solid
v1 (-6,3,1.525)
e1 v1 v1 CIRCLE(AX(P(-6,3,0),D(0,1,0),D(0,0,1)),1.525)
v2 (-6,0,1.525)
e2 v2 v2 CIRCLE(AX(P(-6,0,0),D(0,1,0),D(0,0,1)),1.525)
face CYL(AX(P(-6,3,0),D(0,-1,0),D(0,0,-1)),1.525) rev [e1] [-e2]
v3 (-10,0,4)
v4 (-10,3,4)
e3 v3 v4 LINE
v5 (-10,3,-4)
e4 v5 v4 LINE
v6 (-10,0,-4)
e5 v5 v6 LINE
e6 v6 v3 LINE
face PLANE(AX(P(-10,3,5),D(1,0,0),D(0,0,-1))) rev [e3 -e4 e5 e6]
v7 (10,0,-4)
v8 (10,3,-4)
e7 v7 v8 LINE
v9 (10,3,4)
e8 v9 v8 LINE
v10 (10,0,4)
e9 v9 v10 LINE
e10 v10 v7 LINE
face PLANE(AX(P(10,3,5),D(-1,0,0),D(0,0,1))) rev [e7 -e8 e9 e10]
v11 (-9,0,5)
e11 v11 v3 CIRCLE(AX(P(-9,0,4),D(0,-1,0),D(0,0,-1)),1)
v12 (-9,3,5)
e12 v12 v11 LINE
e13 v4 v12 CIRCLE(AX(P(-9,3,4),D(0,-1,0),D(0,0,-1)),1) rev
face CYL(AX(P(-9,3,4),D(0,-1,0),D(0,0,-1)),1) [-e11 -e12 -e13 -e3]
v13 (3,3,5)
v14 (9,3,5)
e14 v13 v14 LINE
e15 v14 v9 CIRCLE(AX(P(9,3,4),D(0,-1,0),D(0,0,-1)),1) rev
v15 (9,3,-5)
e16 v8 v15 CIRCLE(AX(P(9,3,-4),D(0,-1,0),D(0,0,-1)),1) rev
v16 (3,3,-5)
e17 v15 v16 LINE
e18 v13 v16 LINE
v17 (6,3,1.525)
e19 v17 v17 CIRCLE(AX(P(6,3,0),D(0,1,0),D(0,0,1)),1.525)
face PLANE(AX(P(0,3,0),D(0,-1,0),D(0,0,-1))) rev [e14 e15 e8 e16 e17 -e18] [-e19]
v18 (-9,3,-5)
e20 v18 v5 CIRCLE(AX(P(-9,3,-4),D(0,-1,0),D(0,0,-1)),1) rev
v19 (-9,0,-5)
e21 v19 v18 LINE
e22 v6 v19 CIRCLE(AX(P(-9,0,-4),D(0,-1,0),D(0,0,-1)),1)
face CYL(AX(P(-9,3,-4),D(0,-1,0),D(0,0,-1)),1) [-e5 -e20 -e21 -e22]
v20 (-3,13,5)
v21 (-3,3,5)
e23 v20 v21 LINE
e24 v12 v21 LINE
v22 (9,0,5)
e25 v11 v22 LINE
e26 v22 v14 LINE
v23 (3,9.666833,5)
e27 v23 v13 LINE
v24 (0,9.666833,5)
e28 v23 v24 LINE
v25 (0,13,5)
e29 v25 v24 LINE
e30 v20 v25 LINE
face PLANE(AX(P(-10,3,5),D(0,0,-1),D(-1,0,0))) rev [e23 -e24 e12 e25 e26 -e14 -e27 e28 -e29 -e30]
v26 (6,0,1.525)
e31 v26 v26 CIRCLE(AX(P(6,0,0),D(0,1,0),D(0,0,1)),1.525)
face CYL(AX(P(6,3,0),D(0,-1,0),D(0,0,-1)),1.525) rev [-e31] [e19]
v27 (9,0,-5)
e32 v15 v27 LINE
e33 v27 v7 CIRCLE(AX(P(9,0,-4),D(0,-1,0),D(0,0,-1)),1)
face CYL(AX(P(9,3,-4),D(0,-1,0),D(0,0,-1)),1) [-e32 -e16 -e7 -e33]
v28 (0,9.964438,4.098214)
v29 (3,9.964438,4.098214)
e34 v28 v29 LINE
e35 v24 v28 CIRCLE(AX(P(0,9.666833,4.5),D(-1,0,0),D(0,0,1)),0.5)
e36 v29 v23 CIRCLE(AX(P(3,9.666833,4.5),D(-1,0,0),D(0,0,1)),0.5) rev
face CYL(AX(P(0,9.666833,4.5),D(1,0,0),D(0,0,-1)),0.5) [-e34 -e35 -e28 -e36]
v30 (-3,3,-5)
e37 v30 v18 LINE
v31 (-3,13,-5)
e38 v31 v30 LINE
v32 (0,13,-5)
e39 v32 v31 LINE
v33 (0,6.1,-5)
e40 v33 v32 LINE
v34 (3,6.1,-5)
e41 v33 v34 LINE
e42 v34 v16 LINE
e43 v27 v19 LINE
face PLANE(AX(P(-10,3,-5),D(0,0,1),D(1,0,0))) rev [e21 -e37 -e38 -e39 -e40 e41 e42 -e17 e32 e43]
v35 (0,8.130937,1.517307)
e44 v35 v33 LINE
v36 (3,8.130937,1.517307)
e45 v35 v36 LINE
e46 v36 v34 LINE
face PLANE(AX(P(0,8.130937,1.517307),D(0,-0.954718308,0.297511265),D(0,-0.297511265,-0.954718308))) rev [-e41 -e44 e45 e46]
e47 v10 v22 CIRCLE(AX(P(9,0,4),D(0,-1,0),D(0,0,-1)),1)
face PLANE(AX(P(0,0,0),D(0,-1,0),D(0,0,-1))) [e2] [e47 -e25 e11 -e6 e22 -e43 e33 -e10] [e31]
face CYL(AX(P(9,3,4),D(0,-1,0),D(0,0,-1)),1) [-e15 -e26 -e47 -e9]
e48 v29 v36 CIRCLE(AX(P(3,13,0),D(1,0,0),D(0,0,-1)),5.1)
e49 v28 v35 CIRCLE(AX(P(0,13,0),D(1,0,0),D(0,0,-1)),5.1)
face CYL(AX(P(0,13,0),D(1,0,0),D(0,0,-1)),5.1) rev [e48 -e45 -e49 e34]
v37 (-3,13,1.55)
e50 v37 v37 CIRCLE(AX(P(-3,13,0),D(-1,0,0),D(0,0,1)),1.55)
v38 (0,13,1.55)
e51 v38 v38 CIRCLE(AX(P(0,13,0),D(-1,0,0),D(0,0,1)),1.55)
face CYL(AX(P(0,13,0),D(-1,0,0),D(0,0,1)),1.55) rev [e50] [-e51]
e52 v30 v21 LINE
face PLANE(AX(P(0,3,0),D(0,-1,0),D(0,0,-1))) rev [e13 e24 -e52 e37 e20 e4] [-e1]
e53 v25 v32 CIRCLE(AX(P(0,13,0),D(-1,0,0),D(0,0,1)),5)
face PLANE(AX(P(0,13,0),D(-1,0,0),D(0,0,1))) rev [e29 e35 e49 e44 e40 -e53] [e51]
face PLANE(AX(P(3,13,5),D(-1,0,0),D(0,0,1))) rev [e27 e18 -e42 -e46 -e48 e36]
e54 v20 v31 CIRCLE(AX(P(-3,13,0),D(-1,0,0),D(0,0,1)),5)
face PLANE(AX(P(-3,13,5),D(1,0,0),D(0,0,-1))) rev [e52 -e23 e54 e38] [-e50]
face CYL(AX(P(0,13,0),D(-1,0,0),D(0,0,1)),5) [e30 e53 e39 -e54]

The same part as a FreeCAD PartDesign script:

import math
import FreeCAD as App
import Part
import Sketcher
from FreeCAD import Vector
Q = App.Units.Quantity


def edges_at(feature, points):
    """Names of the edges that pass closest to the given points."""
    edges = feature.Shape.Edges
    near = lambda p: min(range(len(edges)), key=lambda i: edges[i].distToShape(Part.Vertex(*p))[0])
    return sorted({f"Edge{near(p) + 1}" for p in points})

doc = App.newDocument("Part")
params = doc.addObject("Spreadsheet::Sheet", "Params")
for row, (alias, value) in enumerate([
    ("sketch1_diameter", "3.05 mm"),
    ("sketch1_width", "20 mm"),
    ("sketch1_height", "10 mm"),
    ("pad1_length", "3 mm"),
    ("sketch2_width", "6 mm"),
    ("sketch2_height", "10 mm"),
    ("pad2_length", "10 mm"),
    ("sketch3_diameter", "10 mm"),
    ("sketch3_diameter2", "3.1 mm"),
    ("pad3_length", "3 mm"),
    ("sketch4_diameter", "3.1 mm"),
    ("pocket1_length", "6 mm"),
    ("sketch5_diameter", "10 mm"),
    ("pocket2_length", "3 mm"),
    ("fillet_radius", "1 mm"),
    ("sketch6_radius", "5.1 mm"),
    ("sketch6_height", "10 mm"),
    ("pocket3_length", "3 mm"),
    ("fillet2_radius", "0.5 mm"),
    ("sketch7_radius", "5.1 mm"),
    ("sketch7_width", "1.9 mm"),
    ("pocket4_length", "3 mm"),
], start=1):
    params.set(f"A{row}", alias)
    params.set(f"B{row}", "=" + value)
    params.setAlias(f"B{row}", alias)

body = doc.addObject("PartDesign::Body", "Body")

# Sketch on XZ plane
sketch1 = doc.addObject("Sketcher::SketchObject", "Sketch")
body.addObject(sketch1)
sketch1.AttachmentSupport = (doc.XZ_Plane, [""])
sketch1.MapMode = "FlatFace"
sketch1.addGeometry([
    Part.LineSegment(Vector(-10, -5, 0), Vector(-10, 5, 0)),  # 0
    Part.LineSegment(Vector(-10, 5, 0), Vector(10, 5, 0)),  # 1
    Part.LineSegment(Vector(10, 5, 0), Vector(10, -5, 0)),  # 2
    Part.LineSegment(Vector(10, -5, 0), Vector(-10, -5, 0)),  # 3
    Part.Circle(Vector(-6, 0, 0), Vector(0, 0, 1), 1.5),  # 4
    Part.Circle(Vector(6, 0, 0), Vector(0, 0, 1), 1.5),  # 5
], False)
sketch1.addConstraint([
    Sketcher.Constraint("Coincident", 0, 2, 1, 1),
    Sketcher.Constraint("Coincident", 1, 2, 2, 1),
    Sketcher.Constraint("Coincident", 2, 2, 3, 1),
    Sketcher.Constraint("Coincident", 3, 2, 0, 1),
    Sketcher.Constraint("Vertical", 0),
    Sketcher.Constraint("Horizontal", 1),
    Sketcher.Constraint("Vertical", 2),
    Sketcher.Constraint("Horizontal", 3),
    Sketcher.Constraint("Equal", 4, 5),
    Sketcher.Constraint("Symmetric", 4, 3, 5, 3, -1, 1),
    Sketcher.Constraint("Symmetric", 0, 2, 2, 2, -1, 1),
    Sketcher.Constraint("PointOnObject", 4, 3, -1),
    Sketcher.Constraint("Diameter", 4, Q("3.05 mm")),
    Sketcher.Constraint("DistanceX", 1, 1, 1, 2, Q("20 mm")),
    Sketcher.Constraint("DistanceY", 0, 1, 0, 2, Q("10 mm")),
    Sketcher.Constraint("DistanceX", 4, 3, -1, 1, Q("6 mm")),
])
sketch1.setExpression("Constraints[12]", "Params.sketch1_diameter")
sketch1.setExpression("Constraints[13]", "Params.sketch1_width")
sketch1.setExpression("Constraints[14]", "Params.sketch1_height")
pad1 = doc.addObject("PartDesign::Pad", "Pad")
body.addObject(pad1)
pad1.Profile = sketch1
pad1.setExpression("Length", "Params.pad1_length")
pad1.Reversed = True

# Sketch on XZ plane
sketch2 = doc.addObject("Sketcher::SketchObject", "Sketch001")
body.addObject(sketch2)
sketch2.AttachmentSupport = (doc.XZ_Plane, [""])
sketch2.MapMode = "FlatFace"
sketch2.AttachmentOffset = App.Placement(Vector(0, 0, -3), App.Rotation())
sketch2.addGeometry([
    Part.LineSegment(Vector(-3, -5, 0), Vector(-3, 5, 0)),
    Part.LineSegment(Vector(-3, 5, 0), Vector(3, 5, 0)),
    Part.LineSegment(Vector(3, 5, 0), Vector(3, -5, 0)),
    Part.LineSegment(Vector(3, -5, 0), Vector(-3, -5, 0)),
], False)
sketch2.addConstraint([
    Sketcher.Constraint("Coincident", 0, 2, 1, 1),
    Sketcher.Constraint("Coincident", 1, 2, 2, 1),
    Sketcher.Constraint("Coincident", 2, 2, 3, 1),
    Sketcher.Constraint("Coincident", 3, 2, 0, 1),
    Sketcher.Constraint("Vertical", 0),
    Sketcher.Constraint("Horizontal", 1),
    Sketcher.Constraint("Vertical", 2),
    Sketcher.Constraint("Horizontal", 3),
    Sketcher.Constraint("Symmetric", 0, 2, 2, 2, -1, 1),
    Sketcher.Constraint("DistanceX", 1, 1, 1, 2, Q("6 mm")),
    Sketcher.Constraint("DistanceY", 0, 1, 0, 2, Q("10 mm")),
])
sketch2.setExpression("Constraints[9]", "Params.sketch2_width")
sketch2.setExpression("Constraints[10]", "Params.sketch2_height")
pad2 = doc.addObject("PartDesign::Pad", "Pad001")
body.addObject(pad2)
pad2.Profile = sketch2
pad2.setExpression("Length", "Params.pad2_length")
pad2.Reversed = True

# Sketch on YZ plane
sketch3 = doc.addObject("Sketcher::SketchObject", "Sketch002")
body.addObject(sketch3)
sketch3.AttachmentSupport = (doc.YZ_Plane, [""])
sketch3.MapMode = "FlatFace"
sketch3.AttachmentOffset = App.Placement(Vector(0, 0, -3), App.Rotation())
sketch3.addGeometry([
    Part.Circle(Vector(13, 0, 0), Vector(0, 0, 1), 5),
    Part.Circle(Vector(13, 0, 0), Vector(0, 0, 1), 1.6),
], False)
sketch3.addConstraint([
    Sketcher.Constraint("Coincident", 1, 3, 0, 3),
    Sketcher.Constraint("PointOnObject", 0, 3, -1),
    Sketcher.Constraint("Diameter", 0, Q("10 mm")),
    Sketcher.Constraint("Diameter", 1, Q("3.1 mm")),
    Sketcher.Constraint("DistanceX", -1, 1, 0, 3, Q("13 mm")),
])
sketch3.setExpression("Constraints[2]", "Params.sketch3_diameter")
sketch3.setExpression("Constraints[3]", "Params.sketch3_diameter2")
pad3 = doc.addObject("PartDesign::Pad", "Pad002")
body.addObject(pad3)
pad3.Profile = sketch3
pad3.setExpression("Length", "Params.pad3_length")

# Sketch on YZ plane
sketch4 = doc.addObject("Sketcher::SketchObject", "Sketch003")
body.addObject(sketch4)
sketch4.AttachmentSupport = (doc.YZ_Plane, [""])
sketch4.MapMode = "FlatFace"
sketch4.AttachmentOffset = App.Placement(Vector(0, 0, -3), App.Rotation())
sketch4.addGeometry(Part.Circle(Vector(13, 0, 0), Vector(0, 0, 1), 1.6), False)
sketch4.addConstraint([
    Sketcher.Constraint("PointOnObject", 0, 3, -1),
    Sketcher.Constraint("Diameter", 0, Q("3.1 mm")),
    Sketcher.Constraint("DistanceX", -1, 1, 0, 3, Q("13 mm")),
])
sketch4.setExpression("Constraints[1]", "Params.sketch4_diameter")
pocket1 = doc.addObject("PartDesign::Pocket", "Pocket")
body.addObject(pocket1)
pocket1.Profile = sketch4
pocket1.setExpression("Length", "Params.pocket1_length")
pocket1.Reversed = True

# Sketch on YZ plane
sketch5 = doc.addObject("Sketcher::SketchObject", "Sketch004")
body.addObject(sketch5)
sketch5.AttachmentSupport = (doc.YZ_Plane, [""])
sketch5.MapMode = "FlatFace"
sketch5.addGeometry(Part.Circle(Vector(13, 0, 0), Vector(0, 0, 1), 5), False)
sketch5.addConstraint([
    Sketcher.Constraint("PointOnObject", 0, 3, -1),
    Sketcher.Constraint("Diameter", 0, Q("10 mm")),
    Sketcher.Constraint("DistanceX", -1, 1, 0, 3, Q("13 mm")),
])
sketch5.setExpression("Constraints[1]", "Params.sketch5_diameter")
pocket2 = doc.addObject("PartDesign::Pocket", "Pocket001")
body.addObject(pocket2)
pocket2.Profile = sketch5
pocket2.setExpression("Length", "Params.pocket2_length")
pocket2.Reversed = True
doc.recompute()

fillet = doc.addObject("PartDesign::Fillet", "Fillet")
body.addObject(fillet)
fillet.Base = (pocket2, edges_at(pocket2, [
    (10, 1.5, 5),
    (-10, 1.5, 5),
    (-10, 1.5, -5),
    (10, 1.5, -5),
]))
fillet.setExpression("Radius", "Params.fillet_radius")

# Sketch on YZ plane
sketch6 = doc.addObject("Sketcher::SketchObject", "Sketch005")
body.addObject(sketch6)
sketch6.AttachmentSupport = (doc.YZ_Plane, [""])
sketch6.MapMode = "FlatFace"
sketch6.AttachmentOffset = App.Placement(Vector(0, 0, 3), App.Rotation())
sketch6.addGeometry([
    Part.LineSegment(Vector(8, -1, 0), Vector(8, -5, 0)),  # 0
    Part.LineSegment(Vector(8, -5, 0), Vector(14.1, -5, 0)),  # 1
    Part.LineSegment(Vector(14.1, -5, 0), Vector(14.1, 5, 0)),  # 2
    Part.LineSegment(Vector(14.1, 5, 0), Vector(12, 5, 0)),  # 3
    Part.ArcOfCircle(Part.Circle(Vector(13, 0, 0), Vector(0, 0, 1), 5.1), math.radians(101), math.radians(191)),  # 4
], False)
sketch6.addConstraint([
    Sketcher.Constraint("Coincident", 0, 2, 1, 1),
    Sketcher.Constraint("Coincident", 1, 2, 2, 1),
    Sketcher.Constraint("Coincident", 2, 2, 3, 1),
    Sketcher.Constraint("Coincident", 3, 2, 4, 1),
    Sketcher.Constraint("Coincident", 4, 2, 0, 1),
    Sketcher.Constraint("Vertical", 0),
    Sketcher.Constraint("Horizontal", 1),
    Sketcher.Constraint("Vertical", 2),
    Sketcher.Constraint("Horizontal", 3),
    Sketcher.Constraint("PointOnObject", 4, 3, -1),
    Sketcher.Constraint("Radius", 4, Q("5.1 mm")),
    Sketcher.Constraint("DistanceY", 2, 1, 2, 2, Q("10 mm")),
    Sketcher.Constraint("DistanceX", -1, 1, 4, 3, Q("13 mm")),
    Sketcher.Constraint("DistanceX", -1, 1, 0, 2, Q("8 mm")),
    Sketcher.Constraint("DistanceY", 0, 2, -1, 1, Q("5 mm")),
    Sketcher.Constraint("DistanceX", 3, 2, 3, 1, Q("2.10405 mm")),
])
sketch6.setExpression("Constraints[10]", "Params.sketch6_radius")
sketch6.setExpression("Constraints[11]", "Params.sketch6_height")
pocket3 = doc.addObject("PartDesign::Pocket", "Pocket002")
body.addObject(pocket3)
pocket3.Profile = sketch6
pocket3.setExpression("Length", "Params.pocket3_length")
doc.recompute()

fillet2 = doc.addObject("PartDesign::Fillet", "Fillet001")
body.addObject(fillet2)
fillet2.Base = (pocket3, edges_at(pocket3, [(1.5, 11.995, 5)]))
fillet2.setExpression("Radius", "Params.fillet2_radius")

# Sketch on YZ plane
sketch7 = doc.addObject("Sketcher::SketchObject", "Sketch006")
body.addObject(sketch7)
sketch7.AttachmentSupport = (doc.YZ_Plane, [""])
sketch7.MapMode = "FlatFace"
sketch7.AttachmentOffset = App.Placement(Vector(0, 0, 3), App.Rotation())
sketch7.addGeometry([
    Part.LineSegment(Vector(8.1, 1.5, 0), Vector(6.1, -5, 0)),
    Part.LineSegment(Vector(6.1, -5, 0), Vector(8, -5, 0)),
    Part.LineSegment(Vector(8, -5, 0), Vector(8, -1, 0)),
    Part.ArcOfCircle(Part.Circle(Vector(13, 0, 0), Vector(0, 0, 1), 5.1), math.radians(163), math.radians(191)),
], False)
sketch7.addConstraint([
    Sketcher.Constraint("Coincident", 0, 2, 1, 1),
    Sketcher.Constraint("Coincident", 1, 2, 2, 1),
    Sketcher.Constraint("Coincident", 2, 2, 3, 2),
    Sketcher.Constraint("Tangent", 3, 1, 0, 1),
    Sketcher.Constraint("Horizontal", 1),
    Sketcher.Constraint("Vertical", 2),
    Sketcher.Constraint("PointOnObject", 3, 3, -1),
    Sketcher.Constraint("Radius", 3, Q("5.1 mm")),
    Sketcher.Constraint("DistanceX", 1, 1, 1, 2, Q("1.9 mm")),
    Sketcher.Constraint("DistanceX", -1, 1, 3, 3, Q("13 mm")),
    Sketcher.Constraint("DistanceY", 0, 2, -1, 1, Q("5 mm")),
    Sketcher.Constraint("DistanceX", -1, 1, 1, 2, Q("8 mm")),
])
sketch7.setExpression("Constraints[7]", "Params.sketch7_radius")
sketch7.setExpression("Constraints[8]", "Params.sketch7_width")
pocket4 = doc.addObject("PartDesign::Pocket", "Pocket003")
body.addObject(pocket4)
pocket4.Profile = sketch7
pocket4.setExpression("Length", "Params.pocket4_length")

doc.recompute()
